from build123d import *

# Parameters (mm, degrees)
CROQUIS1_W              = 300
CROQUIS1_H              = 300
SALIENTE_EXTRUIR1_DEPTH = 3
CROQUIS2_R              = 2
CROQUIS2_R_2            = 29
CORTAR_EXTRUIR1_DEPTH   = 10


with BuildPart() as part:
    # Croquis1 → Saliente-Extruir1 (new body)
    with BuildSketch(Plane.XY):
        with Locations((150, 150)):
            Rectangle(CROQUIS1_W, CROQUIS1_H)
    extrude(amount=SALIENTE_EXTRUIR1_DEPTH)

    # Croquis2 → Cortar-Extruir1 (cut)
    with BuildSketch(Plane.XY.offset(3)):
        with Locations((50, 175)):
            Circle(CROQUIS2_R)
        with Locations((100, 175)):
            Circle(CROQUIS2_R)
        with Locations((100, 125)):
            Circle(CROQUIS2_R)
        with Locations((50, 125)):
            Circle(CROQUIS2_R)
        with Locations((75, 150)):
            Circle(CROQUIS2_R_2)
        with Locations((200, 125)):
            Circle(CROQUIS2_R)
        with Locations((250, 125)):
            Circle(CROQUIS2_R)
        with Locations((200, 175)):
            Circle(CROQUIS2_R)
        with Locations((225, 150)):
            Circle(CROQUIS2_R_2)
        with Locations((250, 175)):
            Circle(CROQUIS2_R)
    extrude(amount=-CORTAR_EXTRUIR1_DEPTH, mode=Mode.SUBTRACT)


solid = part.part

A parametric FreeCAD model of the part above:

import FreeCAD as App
import Part
import Sketcher
Q = App.Units.Quantity

doc = App.newDocument("Part")
body = doc.addObject("PartDesign::Body", "Body")

# Sketch on XY plane
sketch1 = body.newObject("Sketcher::SketchObject", "Sketch")
sketch1.AttachmentSupport = (doc.getObject("XY_Plane"), [""])
sketch1.MapMode = "FlatFace"
sketch1.addGeometry(Part.LineSegment(App.Vector(0, 300, 0), App.Vector(0, 0, 0)), False)
sketch1.addGeometry(Part.LineSegment(App.Vector(0, 0, 0), App.Vector(300, 0, 0)), False)
sketch1.addGeometry(Part.LineSegment(App.Vector(300, 0, 0), App.Vector(300, 300, 0)), False)
sketch1.addGeometry(Part.LineSegment(App.Vector(300, 300, 0), App.Vector(0, 300, 0)), False)
sketch1.addConstraint(Sketcher.Constraint("Coincident", 0, 2, 1, 1))
sketch1.addConstraint(Sketcher.Constraint("Coincident", 1, 2, 2, 1))
sketch1.addConstraint(Sketcher.Constraint("Coincident", 2, 2, 3, 1))
sketch1.addConstraint(Sketcher.Constraint("Coincident", 3, 2, 0, 1))
sketch1.addConstraint(Sketcher.Constraint("Vertical", 0))
sketch1.addConstraint(Sketcher.Constraint("Horizontal", 1))
sketch1.addConstraint(Sketcher.Constraint("Vertical", 2))
sketch1.addConstraint(Sketcher.Constraint("Horizontal", 3))
sketch1.addConstraint(Sketcher.Constraint("Coincident", 0, 2, -1, 1))
sketch1.addConstraint(Sketcher.Constraint("Equal", 3, 0))
sketch1.addConstraint(Sketcher.Constraint("DistanceX", 1, 1, 1, 2, Q("300 mm")))
pad1 = body.newObject("PartDesign::Pad", "Pad")
pad1.Profile = sketch1
pad1.Length = 3

# Sketch on XY plane
sketch2 = body.newObject("Sketcher::SketchObject", "Sketch001")
sketch2.AttachmentSupport = (doc.getObject("XY_Plane"), [""])
sketch2.MapMode = "FlatFace"
sketch2.AttachmentOffset = App.Placement(App.Vector(0, 0, 3), App.Rotation())
sketch2.addGeometry(Part.Circle(App.Vector(50, 175, 0), App.Vector(0, 0, 1), 2), False)
sketch2.addGeometry(Part.Circle(App.Vector(100, 175, 0), App.Vector(0, 0, 1), 2), False)
sketch2.addGeometry(Part.Circle(App.Vector(100, 125, 0), App.Vector(0, 0, 1), 2), False)
sketch2.addGeometry(Part.Circle(App.Vector(50, 125, 0), App.Vector(0, 0, 1), 2), False)
sketch2.addGeometry(Part.Circle(App.Vector(75, 150, 0), App.Vector(0, 0, 1), 29), False)
sketch2.addGeometry(Part.Circle(App.Vector(200, 125, 0), App.Vector(0, 0, 1), 2), False)
sketch2.addGeometry(Part.Circle(App.Vector(250, 125, 0), App.Vector(0, 0, 1), 2), False)
sketch2.addGeometry(Part.Circle(App.Vector(200, 175, 0), App.Vector(0, 0, 1), 2), False)
sketch2.addGeometry(Part.Circle(App.Vector(225, 150, 0), App.Vector(0, 0, 1), 29), False)
sketch2.addGeometry(Part.Circle(App.Vector(250, 175, 0), App.Vector(0, 0, 1), 2), False)
sketch2.addConstraint(Sketcher.Constraint("Equal", 0, 1))
sketch2.addConstraint(Sketcher.Constraint("Equal", 1, 2))
sketch2.addConstraint(Sketcher.Constraint("Equal", 2, 3))
sketch2.addConstraint(Sketcher.Constraint("Equal", 3, 5))
sketch2.addConstraint(Sketcher.Constraint("Equal", 5, 6))
sketch2.addConstraint(Sketcher.Constraint("Equal", 6, 7))
sketch2.addConstraint(Sketcher.Constraint("Equal", 4, 8))
sketch2.addConstraint(Sketcher.Constraint("Equal", 7, 9))
sketch2.addConstraint(Sketcher.Constraint("Horizontal", 0, 3, 1, 3))
sketch2.addConstraint(Sketcher.Constraint("Horizontal", 2, 3, 3, 3))
sketch2.addConstraint(Sketcher.Constraint("Horizontal", 3, 3, 5, 3))
sketch2.addConstraint(Sketcher.Constraint("Horizontal", 5, 3, 6, 3))
sketch2.addConstraint(Sketcher.Constraint("Horizontal", 1, 3, 7, 3))
sketch2.addConstraint(Sketcher.Constraint("Horizontal", 4, 3, 8, 3))
sketch2.addConstraint(Sketcher.Constraint("Horizontal", 7, 3, 9, 3))
sketch2.addConstraint(Sketcher.Constraint("Vertical", 1, 3, 2, 3))
sketch2.addConstraint(Sketcher.Constraint("Vertical", 0, 3, 3, 3))
sketch2.addConstraint(Sketcher.Constraint("Vertical", 5, 3, 7, 3))
sketch2.addConstraint(Sketcher.Constraint("Vertical", 6, 3, 9, 3))
sketch2.addConstraint(Sketcher.Constraint("Diameter", 0, Q("4 mm")))
sketch2.addConstraint(Sketcher.Constraint("Diameter", 4, Q("58 mm")))
sketch2.addConstraint(Sketcher.Constraint("DistanceX", -1, 1, 0, 3, Q("50 mm")))
sketch2.addConstraint(Sketcher.Constraint("DistanceY", -1, 1, 0, 3, Q("175 mm")))
sketch2.addConstraint(Sketcher.Constraint("DistanceX", -1, 1, 1, 3, Q("100 mm")))
sketch2.addConstraint(Sketcher.Constraint("DistanceY", -1, 1, 2, 3, Q("125 mm")))
sketch2.addConstraint(Sketcher.Constraint("DistanceX", -1, 1, 4, 3, Q("75 mm")))
sketch2.addConstraint(Sketcher.Constraint("DistanceY", -1, 1, 4, 3, Q("150 mm")))
sketch2.addConstraint(Sketcher.Constraint("DistanceX", -1, 1, 5, 3, Q("200 mm")))
sketch2.addConstraint(Sketcher.Constraint("DistanceX", -1, 1, 6, 3, Q("250 mm")))
sketch2.addConstraint(Sketcher.Constraint("DistanceX", -1, 1, 8, 3, Q("225 mm")))
pocket1 = body.newObject("PartDesign::Pocket", "Pocket")
pocket1.Profile = sketch2
pocket1.Length = 10

doc.recompute()
